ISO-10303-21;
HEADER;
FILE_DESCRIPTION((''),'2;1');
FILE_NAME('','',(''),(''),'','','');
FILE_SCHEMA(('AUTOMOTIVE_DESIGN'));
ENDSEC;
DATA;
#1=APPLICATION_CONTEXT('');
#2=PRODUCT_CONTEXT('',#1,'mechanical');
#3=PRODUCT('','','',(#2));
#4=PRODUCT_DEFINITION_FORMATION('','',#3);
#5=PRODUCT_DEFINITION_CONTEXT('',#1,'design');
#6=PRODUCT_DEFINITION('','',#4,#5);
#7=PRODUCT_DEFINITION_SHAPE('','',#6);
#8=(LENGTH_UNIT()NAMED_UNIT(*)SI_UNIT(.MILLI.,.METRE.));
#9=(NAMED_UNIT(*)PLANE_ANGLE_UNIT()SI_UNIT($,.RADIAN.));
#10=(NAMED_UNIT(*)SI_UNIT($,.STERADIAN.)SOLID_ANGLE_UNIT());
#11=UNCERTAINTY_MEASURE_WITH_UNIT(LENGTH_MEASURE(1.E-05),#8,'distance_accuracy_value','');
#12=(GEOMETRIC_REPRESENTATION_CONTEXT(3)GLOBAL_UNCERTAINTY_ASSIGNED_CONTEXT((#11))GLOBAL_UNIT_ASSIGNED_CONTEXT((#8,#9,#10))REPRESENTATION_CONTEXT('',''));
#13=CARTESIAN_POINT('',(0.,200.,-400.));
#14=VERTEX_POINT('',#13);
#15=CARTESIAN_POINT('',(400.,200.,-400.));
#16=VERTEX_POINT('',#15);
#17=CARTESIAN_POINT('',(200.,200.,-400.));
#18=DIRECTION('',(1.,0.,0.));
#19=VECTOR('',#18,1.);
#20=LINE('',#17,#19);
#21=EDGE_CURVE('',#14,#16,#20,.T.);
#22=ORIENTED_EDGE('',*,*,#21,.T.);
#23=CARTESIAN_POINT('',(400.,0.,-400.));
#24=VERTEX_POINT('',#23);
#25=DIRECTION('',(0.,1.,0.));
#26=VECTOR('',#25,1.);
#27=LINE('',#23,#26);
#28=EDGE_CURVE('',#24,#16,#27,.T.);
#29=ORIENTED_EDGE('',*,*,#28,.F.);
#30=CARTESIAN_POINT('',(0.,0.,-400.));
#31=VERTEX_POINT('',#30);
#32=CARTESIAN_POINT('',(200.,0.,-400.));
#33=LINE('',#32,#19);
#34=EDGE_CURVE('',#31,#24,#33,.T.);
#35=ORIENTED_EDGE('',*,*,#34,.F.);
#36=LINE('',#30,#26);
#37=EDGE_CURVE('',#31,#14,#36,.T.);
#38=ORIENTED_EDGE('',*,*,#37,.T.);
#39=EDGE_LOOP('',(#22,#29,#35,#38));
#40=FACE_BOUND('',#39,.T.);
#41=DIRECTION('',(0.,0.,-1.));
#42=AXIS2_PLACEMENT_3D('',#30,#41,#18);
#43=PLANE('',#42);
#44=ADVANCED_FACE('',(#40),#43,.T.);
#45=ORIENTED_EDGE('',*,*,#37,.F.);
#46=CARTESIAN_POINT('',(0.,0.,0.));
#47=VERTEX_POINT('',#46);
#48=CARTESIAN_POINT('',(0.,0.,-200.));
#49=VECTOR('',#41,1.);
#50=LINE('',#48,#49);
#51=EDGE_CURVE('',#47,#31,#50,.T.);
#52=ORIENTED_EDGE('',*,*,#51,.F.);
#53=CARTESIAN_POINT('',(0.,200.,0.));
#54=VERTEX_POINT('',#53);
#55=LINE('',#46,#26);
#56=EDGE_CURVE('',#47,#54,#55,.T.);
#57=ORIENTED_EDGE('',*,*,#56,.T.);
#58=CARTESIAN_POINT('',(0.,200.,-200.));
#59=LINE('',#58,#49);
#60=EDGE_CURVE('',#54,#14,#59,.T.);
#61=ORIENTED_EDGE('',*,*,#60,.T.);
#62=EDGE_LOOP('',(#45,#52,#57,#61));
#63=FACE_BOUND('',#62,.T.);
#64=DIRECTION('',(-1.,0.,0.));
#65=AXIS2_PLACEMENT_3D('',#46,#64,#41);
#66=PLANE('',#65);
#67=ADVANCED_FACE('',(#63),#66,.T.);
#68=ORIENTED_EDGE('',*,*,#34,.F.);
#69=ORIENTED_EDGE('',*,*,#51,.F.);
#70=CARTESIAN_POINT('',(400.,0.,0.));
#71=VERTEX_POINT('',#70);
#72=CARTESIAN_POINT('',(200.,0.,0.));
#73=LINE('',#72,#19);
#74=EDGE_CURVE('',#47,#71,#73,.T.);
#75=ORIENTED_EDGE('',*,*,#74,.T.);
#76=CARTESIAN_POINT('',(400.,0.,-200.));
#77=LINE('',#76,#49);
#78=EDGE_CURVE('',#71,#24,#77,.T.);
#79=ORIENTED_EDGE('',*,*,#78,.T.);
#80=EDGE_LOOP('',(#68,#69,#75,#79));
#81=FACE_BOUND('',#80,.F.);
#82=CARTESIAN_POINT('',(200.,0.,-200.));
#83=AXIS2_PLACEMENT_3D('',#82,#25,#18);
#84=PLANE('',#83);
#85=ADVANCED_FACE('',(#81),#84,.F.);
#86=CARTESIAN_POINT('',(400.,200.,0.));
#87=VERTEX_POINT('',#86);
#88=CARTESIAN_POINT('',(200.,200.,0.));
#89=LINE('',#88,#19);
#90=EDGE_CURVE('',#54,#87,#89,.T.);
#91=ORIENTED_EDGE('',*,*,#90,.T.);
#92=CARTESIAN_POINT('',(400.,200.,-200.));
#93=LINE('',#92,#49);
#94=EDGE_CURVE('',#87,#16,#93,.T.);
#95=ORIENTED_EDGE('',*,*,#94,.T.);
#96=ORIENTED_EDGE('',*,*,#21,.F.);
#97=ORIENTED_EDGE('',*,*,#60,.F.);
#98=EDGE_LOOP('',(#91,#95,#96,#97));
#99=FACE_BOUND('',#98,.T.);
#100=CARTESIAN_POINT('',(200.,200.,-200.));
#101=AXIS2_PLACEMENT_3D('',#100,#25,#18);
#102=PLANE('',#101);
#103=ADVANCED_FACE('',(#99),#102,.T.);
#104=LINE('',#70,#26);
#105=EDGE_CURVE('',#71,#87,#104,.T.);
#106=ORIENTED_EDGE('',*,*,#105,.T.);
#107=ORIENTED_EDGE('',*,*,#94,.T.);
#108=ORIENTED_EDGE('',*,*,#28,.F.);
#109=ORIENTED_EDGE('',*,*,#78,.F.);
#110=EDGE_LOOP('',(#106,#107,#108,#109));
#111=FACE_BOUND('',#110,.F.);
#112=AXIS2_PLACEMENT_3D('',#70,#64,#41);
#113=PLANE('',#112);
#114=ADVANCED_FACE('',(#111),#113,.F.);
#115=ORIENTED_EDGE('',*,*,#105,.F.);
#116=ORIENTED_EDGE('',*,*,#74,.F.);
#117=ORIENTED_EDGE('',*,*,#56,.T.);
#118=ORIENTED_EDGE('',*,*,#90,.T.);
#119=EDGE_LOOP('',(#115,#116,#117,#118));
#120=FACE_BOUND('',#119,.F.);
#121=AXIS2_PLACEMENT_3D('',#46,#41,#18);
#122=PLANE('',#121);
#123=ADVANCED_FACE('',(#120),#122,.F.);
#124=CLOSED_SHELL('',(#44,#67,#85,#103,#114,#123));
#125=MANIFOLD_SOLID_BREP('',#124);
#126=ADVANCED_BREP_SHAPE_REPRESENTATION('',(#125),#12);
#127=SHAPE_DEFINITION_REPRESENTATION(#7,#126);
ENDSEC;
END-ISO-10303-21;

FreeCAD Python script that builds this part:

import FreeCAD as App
import Part
import Sketcher
from FreeCAD import Vector


def add_polygon(sketch, points):
    """Adds a closed chain of lines whose ends are joined by coincident constraints."""
    first, n = sketch.GeometryCount, len(points)
    for a, b in zip(points, points[1:] + points[:1]):
        sketch.addGeometry(Part.LineSegment(App.Vector(*a, 0), App.Vector(*b, 0)), False)
    for i in range(n):
        sketch.addConstraint(Sketcher.Constraint("Coincident", first + i, 2, first + (i + 1) % n, 1))

doc = App.newDocument("Part")
params = doc.addObject("Spreadsheet::Sheet", "Params")
for row, (alias, value) in enumerate([
    ("sketch1_width", "400 mm"),
    ("pad1_length", "200 mm"),
], start=1):
    params.set(f"A{row}", alias)
    params.set(f"B{row}", "=" + value)
    params.setAlias(f"B{row}", alias)

body = doc.addObject("PartDesign::Body", "Body")

# Sketch on XZ plane
sketch1 = body.newObject("Sketcher::SketchObject", "Sketch")
sketch1.AttachmentSupport = (doc.getObject("XZ_Plane"), [""])
sketch1.MapMode = "FlatFace"
add_polygon(sketch1, [(0, -400), (0, 0), (400, 0), (400, -400)])  # lines 0-3
sketch1.addConstraint([
    Sketcher.Constraint("Vertical", 0),
    Sketcher.Constraint("Horizontal", 1),
    Sketcher.Constraint("Vertical", 2),
    Sketcher.Constraint("Horizontal", 3),
    Sketcher.Constraint("Coincident", 0, 2, -1, 1),
    Sketcher.Constraint("Equal", 3, 0),
    Sketcher.Constraint("DistanceX", 1, 1, 1, 2, 400.0),
])
sketch1.setExpression("Constraints[10]", "Params.sketch1_width")
pad1 = body.newObject("PartDesign::Pad", "Pad")
pad1.Profile = sketch1
pad1.setExpression("Length", "Params.pad1_length")
pad1.Reversed = True

doc.recompute()
